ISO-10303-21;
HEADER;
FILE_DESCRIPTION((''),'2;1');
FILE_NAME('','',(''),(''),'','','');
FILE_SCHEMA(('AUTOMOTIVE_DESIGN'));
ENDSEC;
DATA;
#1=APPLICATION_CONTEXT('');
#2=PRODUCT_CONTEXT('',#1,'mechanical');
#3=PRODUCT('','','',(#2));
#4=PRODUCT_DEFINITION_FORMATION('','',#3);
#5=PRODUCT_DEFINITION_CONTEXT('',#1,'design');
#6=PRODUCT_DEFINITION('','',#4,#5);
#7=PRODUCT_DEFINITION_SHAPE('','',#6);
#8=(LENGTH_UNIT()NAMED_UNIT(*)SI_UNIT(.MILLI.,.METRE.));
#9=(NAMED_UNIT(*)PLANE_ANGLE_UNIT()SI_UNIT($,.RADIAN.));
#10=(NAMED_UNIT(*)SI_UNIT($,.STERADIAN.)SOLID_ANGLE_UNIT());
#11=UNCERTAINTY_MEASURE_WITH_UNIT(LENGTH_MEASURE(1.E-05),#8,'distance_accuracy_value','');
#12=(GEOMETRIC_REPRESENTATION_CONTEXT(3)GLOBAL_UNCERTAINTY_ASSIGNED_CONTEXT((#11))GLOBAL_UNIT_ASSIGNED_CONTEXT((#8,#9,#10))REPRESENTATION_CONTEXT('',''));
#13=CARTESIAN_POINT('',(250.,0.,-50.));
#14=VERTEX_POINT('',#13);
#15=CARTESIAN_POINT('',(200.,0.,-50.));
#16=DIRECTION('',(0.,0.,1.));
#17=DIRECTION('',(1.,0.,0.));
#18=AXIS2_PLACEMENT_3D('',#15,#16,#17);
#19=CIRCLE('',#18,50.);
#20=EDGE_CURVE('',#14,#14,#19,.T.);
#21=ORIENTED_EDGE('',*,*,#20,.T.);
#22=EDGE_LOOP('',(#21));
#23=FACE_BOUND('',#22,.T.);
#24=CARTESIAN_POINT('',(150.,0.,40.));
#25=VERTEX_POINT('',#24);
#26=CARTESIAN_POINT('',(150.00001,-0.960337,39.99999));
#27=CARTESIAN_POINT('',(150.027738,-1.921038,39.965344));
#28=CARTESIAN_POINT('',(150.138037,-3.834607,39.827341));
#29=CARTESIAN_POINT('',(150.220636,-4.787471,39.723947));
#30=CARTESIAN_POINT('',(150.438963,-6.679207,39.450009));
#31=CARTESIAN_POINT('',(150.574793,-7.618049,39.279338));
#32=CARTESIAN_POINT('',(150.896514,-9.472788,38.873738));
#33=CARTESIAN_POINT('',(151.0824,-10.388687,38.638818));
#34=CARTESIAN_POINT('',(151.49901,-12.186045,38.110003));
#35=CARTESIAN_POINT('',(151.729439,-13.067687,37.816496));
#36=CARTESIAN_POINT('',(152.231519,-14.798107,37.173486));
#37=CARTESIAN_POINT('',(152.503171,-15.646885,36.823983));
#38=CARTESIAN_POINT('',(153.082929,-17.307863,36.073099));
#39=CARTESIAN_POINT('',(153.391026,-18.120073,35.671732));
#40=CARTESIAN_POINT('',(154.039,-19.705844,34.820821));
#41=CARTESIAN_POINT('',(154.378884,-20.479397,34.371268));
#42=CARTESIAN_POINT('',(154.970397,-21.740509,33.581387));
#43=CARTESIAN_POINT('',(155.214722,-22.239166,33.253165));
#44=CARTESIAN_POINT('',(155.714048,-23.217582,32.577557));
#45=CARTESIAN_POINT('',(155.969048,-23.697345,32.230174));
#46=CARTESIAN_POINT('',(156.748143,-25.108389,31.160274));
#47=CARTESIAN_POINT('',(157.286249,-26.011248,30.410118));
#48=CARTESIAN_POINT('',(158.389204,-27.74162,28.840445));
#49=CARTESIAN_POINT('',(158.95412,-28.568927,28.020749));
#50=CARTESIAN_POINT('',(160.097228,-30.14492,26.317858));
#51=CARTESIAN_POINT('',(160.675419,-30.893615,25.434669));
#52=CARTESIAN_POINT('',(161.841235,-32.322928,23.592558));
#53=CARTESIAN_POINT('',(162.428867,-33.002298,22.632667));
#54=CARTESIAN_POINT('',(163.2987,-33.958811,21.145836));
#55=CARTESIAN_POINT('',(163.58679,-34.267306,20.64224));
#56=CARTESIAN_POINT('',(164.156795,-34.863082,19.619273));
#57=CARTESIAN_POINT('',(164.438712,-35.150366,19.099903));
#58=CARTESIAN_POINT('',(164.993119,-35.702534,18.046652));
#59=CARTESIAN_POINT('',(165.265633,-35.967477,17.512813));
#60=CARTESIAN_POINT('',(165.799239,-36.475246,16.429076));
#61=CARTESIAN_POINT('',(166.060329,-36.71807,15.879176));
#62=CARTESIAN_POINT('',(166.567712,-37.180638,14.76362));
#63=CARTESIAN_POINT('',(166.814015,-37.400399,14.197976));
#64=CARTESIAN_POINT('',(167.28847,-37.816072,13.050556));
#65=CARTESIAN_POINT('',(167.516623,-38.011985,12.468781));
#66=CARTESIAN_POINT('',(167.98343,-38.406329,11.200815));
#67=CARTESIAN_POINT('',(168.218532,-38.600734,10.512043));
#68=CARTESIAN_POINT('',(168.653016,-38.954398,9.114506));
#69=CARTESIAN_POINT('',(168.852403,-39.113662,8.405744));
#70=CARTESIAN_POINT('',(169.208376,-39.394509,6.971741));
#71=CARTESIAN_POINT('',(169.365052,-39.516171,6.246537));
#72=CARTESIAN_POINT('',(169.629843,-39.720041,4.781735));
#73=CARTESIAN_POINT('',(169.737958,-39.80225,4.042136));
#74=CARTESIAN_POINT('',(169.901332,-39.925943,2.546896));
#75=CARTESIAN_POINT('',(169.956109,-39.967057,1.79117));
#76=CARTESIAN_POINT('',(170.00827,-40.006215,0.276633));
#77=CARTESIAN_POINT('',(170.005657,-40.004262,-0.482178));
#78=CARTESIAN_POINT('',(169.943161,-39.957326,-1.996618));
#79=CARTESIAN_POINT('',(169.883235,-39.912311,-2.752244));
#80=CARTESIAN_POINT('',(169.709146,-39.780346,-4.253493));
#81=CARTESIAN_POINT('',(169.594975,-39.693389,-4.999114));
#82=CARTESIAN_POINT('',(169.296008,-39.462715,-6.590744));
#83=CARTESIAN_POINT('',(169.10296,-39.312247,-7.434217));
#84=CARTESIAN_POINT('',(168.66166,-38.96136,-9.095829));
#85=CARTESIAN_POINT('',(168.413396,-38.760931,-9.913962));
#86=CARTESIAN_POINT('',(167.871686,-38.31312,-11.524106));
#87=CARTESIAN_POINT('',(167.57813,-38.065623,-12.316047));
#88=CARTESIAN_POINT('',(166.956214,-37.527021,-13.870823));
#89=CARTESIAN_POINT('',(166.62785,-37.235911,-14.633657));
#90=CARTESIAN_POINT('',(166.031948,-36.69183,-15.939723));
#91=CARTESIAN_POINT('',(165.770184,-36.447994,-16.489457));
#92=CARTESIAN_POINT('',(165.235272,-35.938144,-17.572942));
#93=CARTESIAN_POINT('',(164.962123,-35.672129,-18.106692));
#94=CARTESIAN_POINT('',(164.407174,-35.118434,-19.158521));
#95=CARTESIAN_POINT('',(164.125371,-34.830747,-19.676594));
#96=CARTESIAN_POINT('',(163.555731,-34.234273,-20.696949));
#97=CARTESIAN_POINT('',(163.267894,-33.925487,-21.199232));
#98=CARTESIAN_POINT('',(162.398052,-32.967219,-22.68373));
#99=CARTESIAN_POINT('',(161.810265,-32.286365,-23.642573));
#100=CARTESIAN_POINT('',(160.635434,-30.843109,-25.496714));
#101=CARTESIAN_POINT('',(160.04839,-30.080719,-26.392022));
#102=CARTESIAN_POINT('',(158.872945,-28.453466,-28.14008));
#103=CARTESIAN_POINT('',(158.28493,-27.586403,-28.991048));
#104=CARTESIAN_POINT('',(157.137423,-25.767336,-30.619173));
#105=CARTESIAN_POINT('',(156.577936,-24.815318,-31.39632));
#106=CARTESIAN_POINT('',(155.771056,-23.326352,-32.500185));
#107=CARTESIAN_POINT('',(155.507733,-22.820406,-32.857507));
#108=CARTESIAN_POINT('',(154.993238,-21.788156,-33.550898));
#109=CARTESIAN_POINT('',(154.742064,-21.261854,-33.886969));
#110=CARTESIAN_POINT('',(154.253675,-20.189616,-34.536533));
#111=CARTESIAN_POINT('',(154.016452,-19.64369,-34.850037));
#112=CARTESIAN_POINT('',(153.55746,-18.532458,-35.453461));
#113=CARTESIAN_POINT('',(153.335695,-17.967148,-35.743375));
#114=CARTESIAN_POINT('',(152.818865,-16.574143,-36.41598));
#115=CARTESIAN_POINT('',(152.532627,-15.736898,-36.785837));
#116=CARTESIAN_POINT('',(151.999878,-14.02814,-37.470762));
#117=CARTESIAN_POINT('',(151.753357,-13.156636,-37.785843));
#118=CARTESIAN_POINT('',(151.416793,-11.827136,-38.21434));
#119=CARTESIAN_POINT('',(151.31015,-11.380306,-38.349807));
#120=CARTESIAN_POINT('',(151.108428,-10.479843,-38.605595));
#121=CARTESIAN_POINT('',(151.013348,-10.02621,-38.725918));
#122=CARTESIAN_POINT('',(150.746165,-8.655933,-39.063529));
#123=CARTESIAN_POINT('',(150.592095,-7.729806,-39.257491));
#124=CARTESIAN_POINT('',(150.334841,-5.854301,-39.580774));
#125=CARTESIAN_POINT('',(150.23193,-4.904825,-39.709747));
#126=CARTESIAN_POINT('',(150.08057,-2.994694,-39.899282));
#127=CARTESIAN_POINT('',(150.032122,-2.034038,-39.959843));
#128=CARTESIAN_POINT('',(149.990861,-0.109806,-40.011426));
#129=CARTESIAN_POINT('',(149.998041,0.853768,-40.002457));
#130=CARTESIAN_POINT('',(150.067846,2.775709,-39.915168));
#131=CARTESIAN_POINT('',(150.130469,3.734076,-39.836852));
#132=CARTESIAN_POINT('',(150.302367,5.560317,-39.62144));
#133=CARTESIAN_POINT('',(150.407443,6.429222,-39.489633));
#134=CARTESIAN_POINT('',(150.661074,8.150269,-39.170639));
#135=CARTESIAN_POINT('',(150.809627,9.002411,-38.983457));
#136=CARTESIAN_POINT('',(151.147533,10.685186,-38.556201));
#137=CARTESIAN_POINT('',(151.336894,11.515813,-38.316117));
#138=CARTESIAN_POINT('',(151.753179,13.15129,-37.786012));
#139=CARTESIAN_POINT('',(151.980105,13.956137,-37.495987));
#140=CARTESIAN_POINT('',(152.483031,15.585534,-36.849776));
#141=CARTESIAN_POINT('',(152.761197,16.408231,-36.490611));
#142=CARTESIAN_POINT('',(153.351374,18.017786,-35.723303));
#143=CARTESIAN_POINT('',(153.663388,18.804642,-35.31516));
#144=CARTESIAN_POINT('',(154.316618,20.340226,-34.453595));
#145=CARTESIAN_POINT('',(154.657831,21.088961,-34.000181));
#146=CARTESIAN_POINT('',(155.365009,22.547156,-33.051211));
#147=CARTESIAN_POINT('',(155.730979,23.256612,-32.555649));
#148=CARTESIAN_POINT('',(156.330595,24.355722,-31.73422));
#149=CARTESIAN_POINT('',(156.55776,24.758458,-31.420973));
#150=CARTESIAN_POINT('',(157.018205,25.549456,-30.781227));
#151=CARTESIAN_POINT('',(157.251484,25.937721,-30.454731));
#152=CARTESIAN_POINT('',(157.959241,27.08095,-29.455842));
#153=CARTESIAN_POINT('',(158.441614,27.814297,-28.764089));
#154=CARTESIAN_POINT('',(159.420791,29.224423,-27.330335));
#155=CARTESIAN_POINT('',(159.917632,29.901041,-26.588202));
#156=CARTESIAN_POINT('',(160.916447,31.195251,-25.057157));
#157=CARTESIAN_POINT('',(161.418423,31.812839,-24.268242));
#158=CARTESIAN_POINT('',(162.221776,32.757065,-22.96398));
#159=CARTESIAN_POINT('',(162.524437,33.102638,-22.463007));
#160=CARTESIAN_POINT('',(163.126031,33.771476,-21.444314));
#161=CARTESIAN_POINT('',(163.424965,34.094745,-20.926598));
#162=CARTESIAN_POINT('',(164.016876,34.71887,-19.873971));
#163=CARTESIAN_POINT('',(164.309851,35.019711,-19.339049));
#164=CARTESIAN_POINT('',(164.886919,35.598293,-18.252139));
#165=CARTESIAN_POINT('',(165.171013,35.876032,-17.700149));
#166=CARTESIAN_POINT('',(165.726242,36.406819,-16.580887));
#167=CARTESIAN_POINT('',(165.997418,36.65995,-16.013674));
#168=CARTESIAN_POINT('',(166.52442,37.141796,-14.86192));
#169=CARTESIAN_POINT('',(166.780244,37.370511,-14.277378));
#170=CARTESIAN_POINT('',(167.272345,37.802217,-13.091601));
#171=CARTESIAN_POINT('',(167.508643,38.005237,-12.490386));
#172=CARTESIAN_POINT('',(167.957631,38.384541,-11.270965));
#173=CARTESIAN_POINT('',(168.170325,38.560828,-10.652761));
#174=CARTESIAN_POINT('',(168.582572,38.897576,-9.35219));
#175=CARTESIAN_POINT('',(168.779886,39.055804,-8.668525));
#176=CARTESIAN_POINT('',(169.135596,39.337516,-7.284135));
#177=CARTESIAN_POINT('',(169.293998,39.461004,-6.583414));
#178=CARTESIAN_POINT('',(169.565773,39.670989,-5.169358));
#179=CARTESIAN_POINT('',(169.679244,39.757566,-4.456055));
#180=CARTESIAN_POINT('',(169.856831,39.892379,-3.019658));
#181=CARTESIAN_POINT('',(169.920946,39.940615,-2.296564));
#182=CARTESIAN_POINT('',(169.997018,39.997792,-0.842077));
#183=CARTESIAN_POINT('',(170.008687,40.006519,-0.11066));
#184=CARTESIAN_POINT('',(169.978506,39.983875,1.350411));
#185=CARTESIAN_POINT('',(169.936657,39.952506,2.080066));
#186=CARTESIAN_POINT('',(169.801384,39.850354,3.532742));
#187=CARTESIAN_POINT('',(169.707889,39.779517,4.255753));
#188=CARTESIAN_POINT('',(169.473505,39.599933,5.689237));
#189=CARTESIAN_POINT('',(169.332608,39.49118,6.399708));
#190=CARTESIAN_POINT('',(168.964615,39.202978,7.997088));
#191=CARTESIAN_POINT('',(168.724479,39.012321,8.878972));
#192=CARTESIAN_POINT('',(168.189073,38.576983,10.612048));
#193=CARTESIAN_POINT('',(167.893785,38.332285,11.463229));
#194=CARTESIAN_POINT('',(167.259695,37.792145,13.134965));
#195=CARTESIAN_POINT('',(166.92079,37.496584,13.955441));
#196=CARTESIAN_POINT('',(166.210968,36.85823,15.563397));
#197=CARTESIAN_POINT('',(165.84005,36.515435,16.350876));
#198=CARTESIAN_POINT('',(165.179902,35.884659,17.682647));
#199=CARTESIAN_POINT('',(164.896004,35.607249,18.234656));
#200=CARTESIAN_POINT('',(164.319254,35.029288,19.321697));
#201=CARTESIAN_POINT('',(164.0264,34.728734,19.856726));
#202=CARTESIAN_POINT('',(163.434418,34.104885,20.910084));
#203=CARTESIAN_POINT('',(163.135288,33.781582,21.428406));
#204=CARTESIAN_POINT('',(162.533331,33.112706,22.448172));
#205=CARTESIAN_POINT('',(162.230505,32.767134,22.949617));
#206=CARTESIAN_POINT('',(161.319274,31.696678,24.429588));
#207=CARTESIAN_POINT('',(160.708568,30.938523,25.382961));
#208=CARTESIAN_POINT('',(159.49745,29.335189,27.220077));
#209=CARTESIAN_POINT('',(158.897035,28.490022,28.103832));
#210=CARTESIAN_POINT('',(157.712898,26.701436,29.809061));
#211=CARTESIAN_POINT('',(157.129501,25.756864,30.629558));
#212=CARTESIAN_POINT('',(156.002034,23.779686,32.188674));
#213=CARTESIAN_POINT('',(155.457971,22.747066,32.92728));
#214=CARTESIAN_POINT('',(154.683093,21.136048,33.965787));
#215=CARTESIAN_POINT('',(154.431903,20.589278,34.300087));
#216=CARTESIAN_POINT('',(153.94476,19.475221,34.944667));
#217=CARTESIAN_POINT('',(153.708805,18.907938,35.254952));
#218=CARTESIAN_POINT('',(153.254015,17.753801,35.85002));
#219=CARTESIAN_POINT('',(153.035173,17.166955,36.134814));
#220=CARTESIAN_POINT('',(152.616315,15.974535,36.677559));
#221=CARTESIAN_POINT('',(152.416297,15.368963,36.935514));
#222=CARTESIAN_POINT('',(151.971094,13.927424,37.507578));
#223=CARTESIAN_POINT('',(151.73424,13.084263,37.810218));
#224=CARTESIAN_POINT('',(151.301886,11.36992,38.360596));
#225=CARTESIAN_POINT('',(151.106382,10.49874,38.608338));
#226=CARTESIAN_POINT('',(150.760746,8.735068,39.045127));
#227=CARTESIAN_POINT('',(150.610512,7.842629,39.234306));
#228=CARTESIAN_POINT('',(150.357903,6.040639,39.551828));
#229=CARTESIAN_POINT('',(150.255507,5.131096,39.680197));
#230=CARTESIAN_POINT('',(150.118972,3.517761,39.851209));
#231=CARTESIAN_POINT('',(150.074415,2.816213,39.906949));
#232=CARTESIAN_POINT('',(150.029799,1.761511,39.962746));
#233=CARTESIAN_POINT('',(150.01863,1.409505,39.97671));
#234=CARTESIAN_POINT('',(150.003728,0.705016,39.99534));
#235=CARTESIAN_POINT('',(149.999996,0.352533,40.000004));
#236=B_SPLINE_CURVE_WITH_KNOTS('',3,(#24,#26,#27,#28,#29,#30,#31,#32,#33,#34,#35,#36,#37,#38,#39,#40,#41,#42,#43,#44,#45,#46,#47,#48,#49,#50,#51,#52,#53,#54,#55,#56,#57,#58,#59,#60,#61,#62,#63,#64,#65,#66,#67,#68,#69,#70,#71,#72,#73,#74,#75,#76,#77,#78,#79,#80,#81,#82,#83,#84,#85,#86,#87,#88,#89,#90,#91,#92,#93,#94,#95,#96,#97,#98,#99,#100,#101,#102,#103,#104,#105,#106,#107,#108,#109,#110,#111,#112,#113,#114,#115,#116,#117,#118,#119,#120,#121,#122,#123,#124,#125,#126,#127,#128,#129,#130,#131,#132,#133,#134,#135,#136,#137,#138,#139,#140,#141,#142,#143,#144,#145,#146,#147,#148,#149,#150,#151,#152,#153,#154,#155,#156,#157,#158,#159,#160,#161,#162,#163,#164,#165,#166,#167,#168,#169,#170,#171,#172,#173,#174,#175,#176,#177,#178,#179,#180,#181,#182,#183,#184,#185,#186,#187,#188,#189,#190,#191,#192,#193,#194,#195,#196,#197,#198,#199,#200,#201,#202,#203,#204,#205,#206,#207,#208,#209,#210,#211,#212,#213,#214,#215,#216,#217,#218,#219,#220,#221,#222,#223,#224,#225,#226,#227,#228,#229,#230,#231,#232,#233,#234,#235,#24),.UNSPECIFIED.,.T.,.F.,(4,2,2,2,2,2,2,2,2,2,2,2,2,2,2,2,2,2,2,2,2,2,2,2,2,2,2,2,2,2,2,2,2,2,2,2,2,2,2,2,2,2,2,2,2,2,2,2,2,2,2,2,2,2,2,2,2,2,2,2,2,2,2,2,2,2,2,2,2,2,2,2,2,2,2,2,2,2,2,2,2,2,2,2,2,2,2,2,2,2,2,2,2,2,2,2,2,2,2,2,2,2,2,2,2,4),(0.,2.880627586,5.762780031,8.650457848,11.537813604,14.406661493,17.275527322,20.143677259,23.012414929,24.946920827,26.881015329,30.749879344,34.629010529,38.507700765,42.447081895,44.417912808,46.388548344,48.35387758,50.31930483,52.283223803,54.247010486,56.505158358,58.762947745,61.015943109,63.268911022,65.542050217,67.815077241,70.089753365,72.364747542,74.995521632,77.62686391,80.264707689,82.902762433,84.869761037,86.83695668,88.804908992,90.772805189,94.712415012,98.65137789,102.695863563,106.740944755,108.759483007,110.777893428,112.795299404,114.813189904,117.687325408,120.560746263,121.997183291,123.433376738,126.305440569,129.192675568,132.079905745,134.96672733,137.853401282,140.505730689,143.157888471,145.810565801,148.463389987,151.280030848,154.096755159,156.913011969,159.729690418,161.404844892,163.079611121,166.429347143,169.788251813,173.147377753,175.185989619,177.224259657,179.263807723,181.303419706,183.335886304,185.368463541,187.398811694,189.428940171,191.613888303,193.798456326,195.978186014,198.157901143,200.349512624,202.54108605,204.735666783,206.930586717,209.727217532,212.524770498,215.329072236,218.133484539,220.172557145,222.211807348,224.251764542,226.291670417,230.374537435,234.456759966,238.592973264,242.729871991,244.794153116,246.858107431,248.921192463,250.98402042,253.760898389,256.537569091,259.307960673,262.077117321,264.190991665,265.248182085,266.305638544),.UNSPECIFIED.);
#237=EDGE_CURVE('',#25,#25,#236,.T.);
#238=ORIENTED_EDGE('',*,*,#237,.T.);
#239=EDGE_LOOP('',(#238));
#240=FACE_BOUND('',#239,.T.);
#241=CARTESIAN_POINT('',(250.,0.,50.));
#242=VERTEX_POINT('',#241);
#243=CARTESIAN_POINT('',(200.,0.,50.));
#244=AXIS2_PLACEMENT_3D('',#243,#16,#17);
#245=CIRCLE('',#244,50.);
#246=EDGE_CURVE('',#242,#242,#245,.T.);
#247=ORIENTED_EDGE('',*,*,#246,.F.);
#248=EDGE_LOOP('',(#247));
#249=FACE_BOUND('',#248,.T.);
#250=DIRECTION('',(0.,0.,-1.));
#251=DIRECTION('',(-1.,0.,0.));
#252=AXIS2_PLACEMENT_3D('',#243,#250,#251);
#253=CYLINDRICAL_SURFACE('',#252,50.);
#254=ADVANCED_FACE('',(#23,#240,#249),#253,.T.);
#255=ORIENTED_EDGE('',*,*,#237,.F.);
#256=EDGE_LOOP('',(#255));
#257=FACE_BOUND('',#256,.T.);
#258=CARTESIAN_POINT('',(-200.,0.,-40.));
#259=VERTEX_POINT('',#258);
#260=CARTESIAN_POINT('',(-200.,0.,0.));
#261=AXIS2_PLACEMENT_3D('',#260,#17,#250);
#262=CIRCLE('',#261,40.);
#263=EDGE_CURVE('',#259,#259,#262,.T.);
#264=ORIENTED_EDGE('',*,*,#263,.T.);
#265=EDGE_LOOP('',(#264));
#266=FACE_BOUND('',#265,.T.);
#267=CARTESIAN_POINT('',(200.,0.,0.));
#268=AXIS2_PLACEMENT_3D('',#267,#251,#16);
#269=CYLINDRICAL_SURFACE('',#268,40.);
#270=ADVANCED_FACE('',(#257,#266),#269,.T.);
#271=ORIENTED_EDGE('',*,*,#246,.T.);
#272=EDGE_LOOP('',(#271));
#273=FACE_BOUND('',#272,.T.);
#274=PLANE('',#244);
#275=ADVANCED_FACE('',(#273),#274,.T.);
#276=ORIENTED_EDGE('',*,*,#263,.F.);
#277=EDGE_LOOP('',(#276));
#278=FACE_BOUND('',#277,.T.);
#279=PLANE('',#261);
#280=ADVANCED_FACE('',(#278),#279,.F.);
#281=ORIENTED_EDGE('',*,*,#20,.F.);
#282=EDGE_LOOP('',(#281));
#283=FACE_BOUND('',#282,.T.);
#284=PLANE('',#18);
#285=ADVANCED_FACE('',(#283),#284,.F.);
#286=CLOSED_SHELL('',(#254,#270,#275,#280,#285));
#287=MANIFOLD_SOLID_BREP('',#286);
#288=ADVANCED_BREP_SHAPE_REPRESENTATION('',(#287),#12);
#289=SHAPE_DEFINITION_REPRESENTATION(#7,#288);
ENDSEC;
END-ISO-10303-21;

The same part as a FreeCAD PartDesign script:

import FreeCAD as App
import Part
import Sketcher

doc = App.newDocument("Part")
body = doc.addObject("PartDesign::Body", "Body")

sketch1 = body.newObject("Sketcher::SketchObject", "Sketch")
sketch1.AttachmentSupport = (doc.getObject("YZ_Plane"), [""])
sketch1.MapMode = "FlatFace"
sketch1.addGeometry(Part.Circle(App.Vector(0, 0, 0), App.Vector(0, 0, 1), 40), False)
sketch1.addConstraint([
    Sketcher.Constraint("Coincident", 0, 3, -1, 1),
    Sketcher.Constraint("Diameter", 0, 80.0),
])
pad1 = body.newObject("PartDesign::Pad", "Pad")
pad1.Profile = sketch1
pad1.Length = 400
pad1.Midplane = True

sketch2 = body.newObject("Sketcher::SketchObject", "Sketch001")
sketch2.AttachmentSupport = (doc.getObject("XY_Plane"), [""])
sketch2.MapMode = "FlatFace"
sketch2.addGeometry(Part.Circle(App.Vector(200, 0, 0), App.Vector(0, 0, 1), 50), False)
sketch2.addConstraint([
    Sketcher.Constraint("PointOnObject", 0, 3, -1),
    Sketcher.Constraint("Diameter", 0, 100.0),
    Sketcher.Constraint("DistanceX", -1, 1, 0, 3, 200.0),
])
pad2 = body.newObject("PartDesign::Pad", "Pad001")
pad2.Profile = sketch2
pad2.Length = 100
pad2.Midplane = True

doc.recompute()
